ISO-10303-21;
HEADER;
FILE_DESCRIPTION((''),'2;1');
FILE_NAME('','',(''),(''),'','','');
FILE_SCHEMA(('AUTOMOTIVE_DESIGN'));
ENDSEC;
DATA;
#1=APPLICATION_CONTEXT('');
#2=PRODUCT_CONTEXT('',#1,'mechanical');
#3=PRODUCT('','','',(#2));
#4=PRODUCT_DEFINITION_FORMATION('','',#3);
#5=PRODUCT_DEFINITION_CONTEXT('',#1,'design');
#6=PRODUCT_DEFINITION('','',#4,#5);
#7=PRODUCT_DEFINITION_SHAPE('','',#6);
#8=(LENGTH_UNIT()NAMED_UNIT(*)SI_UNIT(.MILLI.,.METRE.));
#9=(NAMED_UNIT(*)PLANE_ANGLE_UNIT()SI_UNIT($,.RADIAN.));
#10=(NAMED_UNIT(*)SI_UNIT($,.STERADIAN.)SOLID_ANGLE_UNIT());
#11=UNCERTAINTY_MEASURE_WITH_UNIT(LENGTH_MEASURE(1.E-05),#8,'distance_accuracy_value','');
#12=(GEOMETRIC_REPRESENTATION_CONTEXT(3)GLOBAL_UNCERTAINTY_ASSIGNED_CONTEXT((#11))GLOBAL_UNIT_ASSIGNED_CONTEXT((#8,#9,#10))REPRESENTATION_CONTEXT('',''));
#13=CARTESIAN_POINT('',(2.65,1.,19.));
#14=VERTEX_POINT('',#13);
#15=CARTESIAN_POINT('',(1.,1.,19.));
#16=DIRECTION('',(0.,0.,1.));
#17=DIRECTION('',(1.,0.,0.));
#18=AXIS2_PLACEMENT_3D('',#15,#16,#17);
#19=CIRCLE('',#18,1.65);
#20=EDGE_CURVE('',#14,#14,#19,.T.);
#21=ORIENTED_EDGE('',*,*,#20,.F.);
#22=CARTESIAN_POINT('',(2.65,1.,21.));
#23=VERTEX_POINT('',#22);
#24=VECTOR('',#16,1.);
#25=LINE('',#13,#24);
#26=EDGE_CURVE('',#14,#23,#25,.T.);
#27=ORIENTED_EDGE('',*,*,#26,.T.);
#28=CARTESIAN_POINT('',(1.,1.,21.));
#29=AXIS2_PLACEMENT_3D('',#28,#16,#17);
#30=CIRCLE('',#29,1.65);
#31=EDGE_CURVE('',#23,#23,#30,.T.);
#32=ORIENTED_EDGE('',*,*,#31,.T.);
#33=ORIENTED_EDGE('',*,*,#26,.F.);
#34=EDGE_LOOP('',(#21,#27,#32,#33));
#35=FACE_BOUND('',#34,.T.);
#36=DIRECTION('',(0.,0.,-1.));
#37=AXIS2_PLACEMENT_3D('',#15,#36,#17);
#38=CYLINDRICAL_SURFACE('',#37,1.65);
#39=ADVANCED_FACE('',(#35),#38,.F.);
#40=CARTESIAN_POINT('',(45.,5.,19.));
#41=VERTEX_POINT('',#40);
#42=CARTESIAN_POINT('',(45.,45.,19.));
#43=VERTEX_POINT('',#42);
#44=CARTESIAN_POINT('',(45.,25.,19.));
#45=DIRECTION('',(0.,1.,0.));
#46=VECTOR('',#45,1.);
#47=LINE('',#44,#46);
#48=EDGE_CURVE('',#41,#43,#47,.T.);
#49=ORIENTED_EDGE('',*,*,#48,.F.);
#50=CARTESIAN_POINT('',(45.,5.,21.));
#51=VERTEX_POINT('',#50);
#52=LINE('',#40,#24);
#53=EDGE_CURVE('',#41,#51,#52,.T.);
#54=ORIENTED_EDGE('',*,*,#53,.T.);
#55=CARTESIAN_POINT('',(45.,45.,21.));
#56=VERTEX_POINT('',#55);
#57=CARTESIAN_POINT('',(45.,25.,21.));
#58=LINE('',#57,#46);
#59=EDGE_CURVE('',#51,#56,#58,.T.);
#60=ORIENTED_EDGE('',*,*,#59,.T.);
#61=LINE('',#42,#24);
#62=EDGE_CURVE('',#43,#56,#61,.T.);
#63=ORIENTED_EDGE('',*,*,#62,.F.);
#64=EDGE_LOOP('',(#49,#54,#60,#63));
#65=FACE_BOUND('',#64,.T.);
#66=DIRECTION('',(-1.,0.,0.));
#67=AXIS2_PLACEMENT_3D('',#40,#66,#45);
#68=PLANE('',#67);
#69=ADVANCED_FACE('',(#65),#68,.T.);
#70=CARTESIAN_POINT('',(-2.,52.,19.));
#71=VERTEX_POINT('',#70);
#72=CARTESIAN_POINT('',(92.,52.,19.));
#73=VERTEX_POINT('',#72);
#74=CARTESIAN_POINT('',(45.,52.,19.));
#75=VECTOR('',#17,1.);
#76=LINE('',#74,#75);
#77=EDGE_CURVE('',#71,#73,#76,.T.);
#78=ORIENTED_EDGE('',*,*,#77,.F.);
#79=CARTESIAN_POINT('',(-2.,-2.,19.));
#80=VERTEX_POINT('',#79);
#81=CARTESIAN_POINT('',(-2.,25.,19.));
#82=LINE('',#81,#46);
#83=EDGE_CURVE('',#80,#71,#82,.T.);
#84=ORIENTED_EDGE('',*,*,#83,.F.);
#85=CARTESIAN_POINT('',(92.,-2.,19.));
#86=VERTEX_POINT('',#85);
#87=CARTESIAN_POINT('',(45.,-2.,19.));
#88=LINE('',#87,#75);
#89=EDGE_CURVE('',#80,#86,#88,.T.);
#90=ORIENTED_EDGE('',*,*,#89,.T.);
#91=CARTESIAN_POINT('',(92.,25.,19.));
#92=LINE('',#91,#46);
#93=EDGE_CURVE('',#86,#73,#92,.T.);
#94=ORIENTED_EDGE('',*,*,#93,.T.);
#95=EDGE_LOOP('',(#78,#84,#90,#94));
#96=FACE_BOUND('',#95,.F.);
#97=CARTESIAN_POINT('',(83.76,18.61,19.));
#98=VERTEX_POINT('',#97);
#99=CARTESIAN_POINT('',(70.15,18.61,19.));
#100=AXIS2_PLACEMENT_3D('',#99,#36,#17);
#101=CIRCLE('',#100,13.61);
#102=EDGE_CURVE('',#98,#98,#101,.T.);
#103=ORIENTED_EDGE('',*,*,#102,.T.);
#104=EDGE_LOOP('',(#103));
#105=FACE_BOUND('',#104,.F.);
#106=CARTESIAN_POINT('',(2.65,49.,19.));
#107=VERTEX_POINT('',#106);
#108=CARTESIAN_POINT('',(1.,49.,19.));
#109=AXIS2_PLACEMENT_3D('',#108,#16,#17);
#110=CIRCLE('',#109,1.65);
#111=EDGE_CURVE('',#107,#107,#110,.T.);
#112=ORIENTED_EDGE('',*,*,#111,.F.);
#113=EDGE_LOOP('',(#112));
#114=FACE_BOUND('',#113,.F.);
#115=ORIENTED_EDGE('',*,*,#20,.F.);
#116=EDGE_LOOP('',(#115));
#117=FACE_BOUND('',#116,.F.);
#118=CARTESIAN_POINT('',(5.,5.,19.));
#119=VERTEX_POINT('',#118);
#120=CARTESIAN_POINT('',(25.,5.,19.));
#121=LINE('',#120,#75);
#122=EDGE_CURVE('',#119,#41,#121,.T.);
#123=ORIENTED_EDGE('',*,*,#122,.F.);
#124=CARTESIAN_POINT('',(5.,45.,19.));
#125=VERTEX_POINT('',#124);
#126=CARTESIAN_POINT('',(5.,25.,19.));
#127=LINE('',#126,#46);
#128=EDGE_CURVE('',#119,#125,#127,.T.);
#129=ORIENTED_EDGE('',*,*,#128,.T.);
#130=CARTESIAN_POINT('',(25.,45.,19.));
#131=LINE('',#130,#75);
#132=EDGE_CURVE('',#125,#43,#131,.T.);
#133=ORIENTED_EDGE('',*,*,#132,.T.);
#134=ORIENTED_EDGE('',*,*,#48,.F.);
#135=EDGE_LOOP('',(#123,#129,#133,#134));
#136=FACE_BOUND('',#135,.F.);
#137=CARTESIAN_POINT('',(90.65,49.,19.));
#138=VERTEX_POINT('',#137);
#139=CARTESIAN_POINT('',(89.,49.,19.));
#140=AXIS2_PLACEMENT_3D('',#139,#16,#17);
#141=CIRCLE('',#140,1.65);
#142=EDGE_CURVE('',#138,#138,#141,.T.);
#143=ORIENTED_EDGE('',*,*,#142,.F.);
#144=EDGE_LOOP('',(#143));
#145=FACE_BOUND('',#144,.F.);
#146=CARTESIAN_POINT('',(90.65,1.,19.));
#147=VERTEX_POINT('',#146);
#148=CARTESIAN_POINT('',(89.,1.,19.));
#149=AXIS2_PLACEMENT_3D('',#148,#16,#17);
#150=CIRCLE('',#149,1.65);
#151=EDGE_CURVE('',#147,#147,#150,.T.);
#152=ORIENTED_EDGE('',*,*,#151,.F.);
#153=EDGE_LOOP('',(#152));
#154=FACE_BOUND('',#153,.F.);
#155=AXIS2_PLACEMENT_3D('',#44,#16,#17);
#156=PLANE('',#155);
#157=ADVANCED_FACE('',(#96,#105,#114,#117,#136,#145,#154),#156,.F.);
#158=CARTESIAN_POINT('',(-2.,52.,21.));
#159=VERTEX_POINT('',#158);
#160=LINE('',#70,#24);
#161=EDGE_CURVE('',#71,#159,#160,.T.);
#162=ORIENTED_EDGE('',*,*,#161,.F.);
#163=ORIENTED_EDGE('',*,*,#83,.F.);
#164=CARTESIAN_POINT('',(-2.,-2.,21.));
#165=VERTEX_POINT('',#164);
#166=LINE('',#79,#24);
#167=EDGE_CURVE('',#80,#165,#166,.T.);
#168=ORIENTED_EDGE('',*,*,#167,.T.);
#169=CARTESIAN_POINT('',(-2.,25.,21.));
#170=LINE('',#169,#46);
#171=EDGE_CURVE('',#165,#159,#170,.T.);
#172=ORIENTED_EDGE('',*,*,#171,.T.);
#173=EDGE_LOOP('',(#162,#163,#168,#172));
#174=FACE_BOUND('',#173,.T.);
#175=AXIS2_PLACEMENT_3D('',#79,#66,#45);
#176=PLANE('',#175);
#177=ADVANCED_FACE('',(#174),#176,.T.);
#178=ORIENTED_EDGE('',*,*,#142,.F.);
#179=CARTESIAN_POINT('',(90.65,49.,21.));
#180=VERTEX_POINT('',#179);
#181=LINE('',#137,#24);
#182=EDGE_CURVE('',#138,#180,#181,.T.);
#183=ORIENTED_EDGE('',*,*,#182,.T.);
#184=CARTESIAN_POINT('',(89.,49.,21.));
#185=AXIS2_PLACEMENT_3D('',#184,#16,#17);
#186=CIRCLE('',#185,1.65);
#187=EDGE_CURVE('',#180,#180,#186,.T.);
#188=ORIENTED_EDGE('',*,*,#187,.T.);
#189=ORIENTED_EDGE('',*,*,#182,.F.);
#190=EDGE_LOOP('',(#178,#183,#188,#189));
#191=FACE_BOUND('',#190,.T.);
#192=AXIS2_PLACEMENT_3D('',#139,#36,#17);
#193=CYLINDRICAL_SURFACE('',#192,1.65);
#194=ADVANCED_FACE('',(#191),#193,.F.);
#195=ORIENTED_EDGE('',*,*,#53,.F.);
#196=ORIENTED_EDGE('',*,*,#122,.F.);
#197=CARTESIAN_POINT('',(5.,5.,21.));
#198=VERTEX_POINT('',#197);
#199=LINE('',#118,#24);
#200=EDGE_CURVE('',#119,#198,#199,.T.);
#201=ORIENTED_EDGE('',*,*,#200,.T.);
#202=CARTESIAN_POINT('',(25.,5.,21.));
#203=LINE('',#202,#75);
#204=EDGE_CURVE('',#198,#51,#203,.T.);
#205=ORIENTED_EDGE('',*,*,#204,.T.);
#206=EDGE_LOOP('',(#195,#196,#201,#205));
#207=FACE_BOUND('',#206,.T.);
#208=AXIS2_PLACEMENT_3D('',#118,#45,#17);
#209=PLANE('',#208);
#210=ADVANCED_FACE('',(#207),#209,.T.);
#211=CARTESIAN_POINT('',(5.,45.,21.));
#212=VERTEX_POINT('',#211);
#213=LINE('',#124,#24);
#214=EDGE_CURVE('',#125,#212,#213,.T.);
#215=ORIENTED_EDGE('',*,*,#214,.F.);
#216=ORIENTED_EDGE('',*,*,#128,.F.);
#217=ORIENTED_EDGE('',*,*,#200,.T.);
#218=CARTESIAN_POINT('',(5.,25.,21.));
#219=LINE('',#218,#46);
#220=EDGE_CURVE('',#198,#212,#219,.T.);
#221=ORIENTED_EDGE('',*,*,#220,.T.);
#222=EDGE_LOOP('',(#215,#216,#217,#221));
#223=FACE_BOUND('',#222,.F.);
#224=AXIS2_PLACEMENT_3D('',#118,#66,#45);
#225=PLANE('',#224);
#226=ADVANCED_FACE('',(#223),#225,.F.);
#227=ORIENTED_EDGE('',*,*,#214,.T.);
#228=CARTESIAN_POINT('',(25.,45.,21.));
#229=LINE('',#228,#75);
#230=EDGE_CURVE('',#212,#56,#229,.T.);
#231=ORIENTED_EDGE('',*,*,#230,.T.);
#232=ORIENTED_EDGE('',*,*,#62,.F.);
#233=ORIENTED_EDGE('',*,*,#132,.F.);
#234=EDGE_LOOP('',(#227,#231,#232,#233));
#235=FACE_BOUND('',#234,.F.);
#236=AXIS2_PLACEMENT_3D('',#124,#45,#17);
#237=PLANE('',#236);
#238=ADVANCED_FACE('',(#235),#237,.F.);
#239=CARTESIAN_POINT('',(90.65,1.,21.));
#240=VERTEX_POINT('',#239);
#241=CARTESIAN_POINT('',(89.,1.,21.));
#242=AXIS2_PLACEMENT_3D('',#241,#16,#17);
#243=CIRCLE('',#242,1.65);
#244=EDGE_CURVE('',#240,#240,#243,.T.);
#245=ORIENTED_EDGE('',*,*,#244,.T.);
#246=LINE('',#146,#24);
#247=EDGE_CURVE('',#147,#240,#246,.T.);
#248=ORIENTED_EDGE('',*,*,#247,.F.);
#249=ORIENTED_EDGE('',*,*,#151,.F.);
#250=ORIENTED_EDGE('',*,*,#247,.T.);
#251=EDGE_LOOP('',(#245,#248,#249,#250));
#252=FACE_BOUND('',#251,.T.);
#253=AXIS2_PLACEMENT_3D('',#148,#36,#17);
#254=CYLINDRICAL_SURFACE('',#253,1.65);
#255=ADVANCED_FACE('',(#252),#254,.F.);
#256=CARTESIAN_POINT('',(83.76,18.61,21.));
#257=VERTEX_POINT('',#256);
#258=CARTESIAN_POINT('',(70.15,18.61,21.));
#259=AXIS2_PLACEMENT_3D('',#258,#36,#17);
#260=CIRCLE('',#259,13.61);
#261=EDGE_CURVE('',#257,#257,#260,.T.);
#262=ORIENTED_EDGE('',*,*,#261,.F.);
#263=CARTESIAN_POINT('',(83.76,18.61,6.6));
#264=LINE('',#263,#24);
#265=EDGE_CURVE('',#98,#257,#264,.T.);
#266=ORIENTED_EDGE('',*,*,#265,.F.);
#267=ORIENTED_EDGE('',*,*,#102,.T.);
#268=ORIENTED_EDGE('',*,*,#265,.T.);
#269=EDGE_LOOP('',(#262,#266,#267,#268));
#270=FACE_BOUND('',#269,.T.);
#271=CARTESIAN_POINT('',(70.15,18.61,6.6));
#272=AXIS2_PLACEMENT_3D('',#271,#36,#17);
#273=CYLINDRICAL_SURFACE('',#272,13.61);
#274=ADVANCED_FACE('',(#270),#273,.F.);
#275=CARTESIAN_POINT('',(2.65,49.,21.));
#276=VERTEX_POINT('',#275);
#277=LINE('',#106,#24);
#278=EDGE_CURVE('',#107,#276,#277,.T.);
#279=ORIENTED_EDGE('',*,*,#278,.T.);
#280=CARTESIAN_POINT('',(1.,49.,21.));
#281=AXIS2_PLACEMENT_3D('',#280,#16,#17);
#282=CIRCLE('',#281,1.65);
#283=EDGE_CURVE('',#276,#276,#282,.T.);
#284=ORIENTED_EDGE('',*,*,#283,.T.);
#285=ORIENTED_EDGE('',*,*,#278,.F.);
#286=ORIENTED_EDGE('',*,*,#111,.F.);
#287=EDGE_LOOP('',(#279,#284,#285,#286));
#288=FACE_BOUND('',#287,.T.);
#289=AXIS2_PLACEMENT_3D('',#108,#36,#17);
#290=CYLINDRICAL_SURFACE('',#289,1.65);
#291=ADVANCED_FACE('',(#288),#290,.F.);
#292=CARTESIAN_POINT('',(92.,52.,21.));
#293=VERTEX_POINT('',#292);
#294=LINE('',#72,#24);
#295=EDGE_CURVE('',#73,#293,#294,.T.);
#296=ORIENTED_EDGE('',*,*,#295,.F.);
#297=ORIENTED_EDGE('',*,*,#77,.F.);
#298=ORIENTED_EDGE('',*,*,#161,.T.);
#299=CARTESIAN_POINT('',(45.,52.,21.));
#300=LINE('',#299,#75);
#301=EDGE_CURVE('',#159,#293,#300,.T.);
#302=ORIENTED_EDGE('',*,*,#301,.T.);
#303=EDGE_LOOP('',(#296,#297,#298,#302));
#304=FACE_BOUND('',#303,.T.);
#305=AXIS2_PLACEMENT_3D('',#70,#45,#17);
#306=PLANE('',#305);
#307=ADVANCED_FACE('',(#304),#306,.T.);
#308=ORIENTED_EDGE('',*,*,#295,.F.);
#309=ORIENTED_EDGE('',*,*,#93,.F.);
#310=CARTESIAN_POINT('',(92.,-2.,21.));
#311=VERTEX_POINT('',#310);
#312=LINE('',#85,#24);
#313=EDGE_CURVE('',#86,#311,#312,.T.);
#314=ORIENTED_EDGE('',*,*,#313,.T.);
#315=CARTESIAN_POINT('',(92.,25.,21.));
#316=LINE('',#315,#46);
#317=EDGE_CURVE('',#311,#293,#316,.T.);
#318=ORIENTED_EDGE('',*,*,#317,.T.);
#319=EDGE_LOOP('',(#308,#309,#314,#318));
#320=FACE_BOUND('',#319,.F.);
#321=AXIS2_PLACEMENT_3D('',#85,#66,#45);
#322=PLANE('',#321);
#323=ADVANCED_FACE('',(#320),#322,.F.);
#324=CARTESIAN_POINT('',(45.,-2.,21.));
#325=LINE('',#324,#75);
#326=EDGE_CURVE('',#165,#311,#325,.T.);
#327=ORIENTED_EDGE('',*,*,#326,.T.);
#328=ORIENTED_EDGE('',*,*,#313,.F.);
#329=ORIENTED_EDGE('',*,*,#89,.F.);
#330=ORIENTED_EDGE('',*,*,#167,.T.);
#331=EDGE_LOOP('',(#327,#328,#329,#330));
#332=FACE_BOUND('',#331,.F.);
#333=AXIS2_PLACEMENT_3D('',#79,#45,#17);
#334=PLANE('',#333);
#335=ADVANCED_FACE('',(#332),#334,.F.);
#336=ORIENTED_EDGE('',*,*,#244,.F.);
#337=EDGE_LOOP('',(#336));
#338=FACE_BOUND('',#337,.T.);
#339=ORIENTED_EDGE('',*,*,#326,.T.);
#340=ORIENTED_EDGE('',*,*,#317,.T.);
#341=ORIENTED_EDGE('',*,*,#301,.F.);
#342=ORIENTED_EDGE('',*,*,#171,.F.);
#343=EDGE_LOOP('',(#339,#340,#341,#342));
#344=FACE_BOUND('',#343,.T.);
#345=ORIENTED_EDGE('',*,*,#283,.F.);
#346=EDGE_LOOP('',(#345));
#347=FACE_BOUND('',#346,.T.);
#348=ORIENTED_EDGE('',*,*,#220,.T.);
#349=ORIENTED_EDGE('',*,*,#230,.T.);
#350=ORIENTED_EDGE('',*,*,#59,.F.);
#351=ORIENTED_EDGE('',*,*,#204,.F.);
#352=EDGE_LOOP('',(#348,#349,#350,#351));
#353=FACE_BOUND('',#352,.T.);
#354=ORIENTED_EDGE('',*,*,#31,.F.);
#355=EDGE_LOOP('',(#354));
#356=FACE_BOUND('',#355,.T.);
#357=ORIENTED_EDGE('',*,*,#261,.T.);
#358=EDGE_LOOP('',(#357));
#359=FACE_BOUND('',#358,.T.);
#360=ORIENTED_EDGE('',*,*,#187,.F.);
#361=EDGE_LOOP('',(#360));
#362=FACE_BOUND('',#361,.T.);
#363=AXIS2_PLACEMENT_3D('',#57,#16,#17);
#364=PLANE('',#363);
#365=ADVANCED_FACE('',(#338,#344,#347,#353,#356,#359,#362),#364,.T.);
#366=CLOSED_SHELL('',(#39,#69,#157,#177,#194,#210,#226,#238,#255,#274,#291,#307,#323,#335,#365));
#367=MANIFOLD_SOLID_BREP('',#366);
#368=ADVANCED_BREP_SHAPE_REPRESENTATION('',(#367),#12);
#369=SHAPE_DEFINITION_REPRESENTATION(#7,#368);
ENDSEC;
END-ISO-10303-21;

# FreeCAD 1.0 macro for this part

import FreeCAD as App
import Part
import Sketcher

V = App.Vector
Q = App.Units.Quantity


def add_polygon(sketch, points):
    """Adds a closed chain of lines whose ends are joined by coincident constraints."""
    first, n = sketch.GeometryCount, len(points)
    for a, b in zip(points, points[1:] + points[:1]):
        sketch.addGeometry(Part.LineSegment(App.Vector(*a, 0), App.Vector(*b, 0)), False)
    for i in range(n):
        sketch.addConstraint(Sketcher.Constraint("Coincident", first + i, 2, first + (i + 1) % n, 1))

doc = App.newDocument("Part")
body = doc.addObject("PartDesign::Body", "Body")

# Sketch on XY plane
sketch1 = body.newObject("Sketcher::SketchObject", "Sketch")
sketch1.AttachmentSupport = (doc.getObject("XY_Plane"), [""])
sketch1.MapMode = "FlatFace"
sketch1.addGeometry(Part.Circle(V(16.975, 14, 0), V(0, 0, 1), 11), False)
sketch1.addConstraint(Sketcher.Constraint("Diameter", 0, Q("22 mm")))
sketch1.addConstraint(Sketcher.Constraint("DistanceY", -1, 1, 0, 3, Q("14 mm")))
sketch1.addConstraint(Sketcher.Constraint("DistanceX", -1, 1, 0, 3, Q("16.975 mm")))
pad1 = body.newObject("PartDesign::Pad", "Pad")
pad1.Profile = sketch1
pad1.Length = 11
body2 = doc.addObject("PartDesign::Body", "Body001")
doc.recompute()

body.Placement = App.Placement(V(0, 0, 20.87), App.Rotation(V(0, 0, 1), 0))
boolean = body2.newObject("PartDesign::Boolean", "Boolean")
boolean.Type = "Fuse"
boolean.addObjects([body])
body3 = doc.addObject("PartDesign::Body", "Body002")

# Sketch on XY plane
sketch2 = body3.newObject("Sketcher::SketchObject", "Sketch001")
sketch2.AttachmentSupport = (doc.getObject("XY_Plane002"), [""])
sketch2.MapMode = "FlatFace"
add_polygon(sketch2, [(0, 26.75), (0, 0), (33.86, 0), (33.86, 26.75)])  # lines 0-3
sketch2.addGeometry(Part.Circle(V(4.99, 3.31, 0), V(0, 0, 1), 1.65), False)  # 4
sketch2.addGeometry(Part.Circle(V(31.01, 3.31, 0), V(0, 0, 1), 1.65), False)  # 5
sketch2.addGeometry(Part.Circle(V(5, 22.88, 0), V(0, 0, 1), 1.65), False)  # 6
sketch2.addGeometry(Part.Circle(V(31.01, 22.88, 0), V(0, 0, 1), 1.65), False)  # 7
sketch2.addConstraint(Sketcher.Constraint("Vertical", 0))
sketch2.addConstraint(Sketcher.Constraint("Horizontal", 1))
sketch2.addConstraint(Sketcher.Constraint("Vertical", 2))
sketch2.addConstraint(Sketcher.Constraint("Horizontal", 3))
sketch2.addConstraint(Sketcher.Constraint("Coincident", 0, 2, -1, 1))
sketch2.addConstraint(Sketcher.Constraint("Equal", 4, 5))
sketch2.addConstraint(Sketcher.Constraint("Equal", 5, 6))
sketch2.addConstraint(Sketcher.Constraint("Equal", 6, 7))
sketch2.addConstraint(Sketcher.Constraint("Horizontal", 4, 3, 5, 3))
sketch2.addConstraint(Sketcher.Constraint("Horizontal", 6, 3, 7, 3))
sketch2.addConstraint(Sketcher.Constraint("Vertical", 5, 3, 7, 3))
sketch2.addConstraint(Sketcher.Constraint("Diameter", 4, Q("3.3 mm")))
sketch2.addConstraint(Sketcher.Constraint("DistanceX", -1, 1, 6, 3, Q("5 mm")))
sketch2.addConstraint(Sketcher.Constraint("DistanceX", 1, 1, 1, 2, Q("33.86 mm")))
sketch2.addConstraint(Sketcher.Constraint("DistanceY", 0, 2, 0, 1, Q("26.75 mm")))
sketch2.addConstraint(Sketcher.Constraint("DistanceX", -1, 1, 4, 3, Q("4.99 mm")))
sketch2.addConstraint(Sketcher.Constraint("DistanceY", -1, 1, 4, 3, Q("3.31 mm")))
sketch2.addConstraint(Sketcher.Constraint("DistanceX", -1, 1, 5, 3, Q("31.01 mm")))
sketch2.addConstraint(Sketcher.Constraint("DistanceY", -1, 1, 6, 3, Q("22.88 mm")))
pad2 = body3.newObject("PartDesign::Pad", "Pad001")
pad2.Profile = sketch2
pad2.Length = 1.6
body4 = doc.addObject("PartDesign::Body", "Body003")

# Sketch on XY plane
sketch3 = body4.newObject("Sketcher::SketchObject", "Sketch002")
sketch3.AttachmentSupport = (doc.getObject("XY_Plane003"), [""])
sketch3.MapMode = "FlatFace"
add_polygon(sketch3, [(-17, 20.25), (-17, 7.5), (0, 7.5), (0, 20.25)])  # lines 0-3
sketch3.addConstraint(Sketcher.Constraint("Vertical", 0))
sketch3.addConstraint(Sketcher.Constraint("Horizontal", 1))
sketch3.addConstraint(Sketcher.Constraint("Vertical", 2))
sketch3.addConstraint(Sketcher.Constraint("Horizontal", 3))
sketch3.addConstraint(Sketcher.Constraint("PointOnObject", 1, 2, -2))
sketch3.addConstraint(Sketcher.Constraint("DistanceX", 1, 1, 1, 2, Q("17 mm")))
sketch3.addConstraint(Sketcher.Constraint("DistanceY", 0, 2, 0, 1, Q("12.75 mm")))
sketch3.addConstraint(Sketcher.Constraint("DistanceY", -1, 1, 0, 2, Q("7.5 mm")))
pad3 = body4.newObject("PartDesign::Pad", "Pad002")
pad3.Profile = sketch3
pad3.Length = 4.3
body5 = doc.addObject("PartDesign::Body", "Body004")
doc.recompute()

body4.Placement = App.Placement(V(0.1, 0, 1.6), App.Rotation(V(0, 0, 1), 0))
boolean2 = body5.newObject("PartDesign::Boolean", "Boolean001")
boolean2.Type = "Fuse"
boolean2.addObjects([body4])
body6 = doc.addObject("PartDesign::Body", "Body005")

# Sketch on XY plane
sketch4 = body6.newObject("Sketcher::SketchObject", "Sketch003")
sketch4.AttachmentSupport = (doc.getObject("XY_Plane005"), [""])
sketch4.MapMode = "FlatFace"
sketch4.addGeometry(Part.Circle(V(17.15, 13.61, 0), V(0, 0, 1), 13.61), False)
sketch4.addConstraint(Sketcher.Constraint("Diameter", 0, Q("27.22 mm")))
sketch4.addConstraint(Sketcher.Constraint("DistanceX", -1, 1, 0, 3, Q("17.15 mm")))
sketch4.addConstraint(Sketcher.Constraint("DistanceY", -1, 1, 0, 3, Q("13.61 mm")))
pad4 = body6.newObject("PartDesign::Pad", "Pad003")
pad4.Profile = sketch4
pad4.Length = 19.27
body7 = doc.addObject("PartDesign::Body", "Body006")
doc.recompute()

body6.Placement = App.Placement(V(0, 0, 1.6), App.Rotation(V(0, 0, 1), 0))
boolean3 = body7.newObject("PartDesign::Boolean", "Boolean002")
boolean3.Type = "Fuse"
boolean3.addObjects([body6])
doc.recompute()

boolean4 = body7.newObject("PartDesign::Boolean", "Boolean003")
boolean4.Type = "Fuse"
boolean4.addObjects([body2])
doc.recompute()

boolean5 = body7.newObject("PartDesign::Boolean", "Boolean004")
boolean5.Type = "Fuse"
boolean5.addObjects([body3])
doc.recompute()

boolean6 = body7.newObject("PartDesign::Boolean", "Boolean005")
boolean6.Type = "Fuse"
boolean6.addObjects([body5])
body8 = doc.addObject("PartDesign::Body", "Body007")
doc.recompute()

body7.Placement = App.Placement(V(53, 5, 5), App.Rotation(V(0, 0, 1), 0))
boolean7 = body8.newObject("PartDesign::Boolean", "Boolean006")
boolean7.Type = "Fuse"
boolean7.addObjects([body7])
body9 = doc.addObject("PartDesign::Body", "Body008")

# Sketch on XY plane
sketch5 = body9.newObject("Sketcher::SketchObject", "Sketch004")
sketch5.AttachmentSupport = (doc.getObject("XY_Plane008"), [""])
sketch5.MapMode = "FlatFace"
add_polygon(sketch5, [(-2, 52), (-2, -2), (92, -2), (92, 52)])  # lines 0-3
sketch5.addGeometry(Part.Circle(V(1, 1, 0), V(0, 0, 1), 1.65), False)  # 4
sketch5.addGeometry(Part.Circle(V(89, 1, 0), V(0, 0, 1), 1.65), False)  # 5
add_polygon(sketch5, [(45, 5), (5, 5), (5, 45), (45, 45)])  # lines 6-9
sketch5.addGeometry(Part.Circle(V(1, 49, 0), V(0, 0, 1), 1.65), False)  # 10
sketch5.addGeometry(Part.Circle(V(89, 49, 0), V(0, 0, 1), 1.65), False)  # 11
sketch5.addConstraint(Sketcher.Constraint("Vertical", 0))
sketch5.addConstraint(Sketcher.Constraint("Horizontal", 1))
sketch5.addConstraint(Sketcher.Constraint("Vertical", 2))
sketch5.addConstraint(Sketcher.Constraint("Horizontal", 3))
sketch5.addConstraint(Sketcher.Constraint("Horizontal", 6))
sketch5.addConstraint(Sketcher.Constraint("Vertical", 7))
sketch5.addConstraint(Sketcher.Constraint("Horizontal", 8))
sketch5.addConstraint(Sketcher.Constraint("Vertical", 9))
sketch5.addConstraint(Sketcher.Constraint("Equal", 4, 5))
sketch5.addConstraint(Sketcher.Constraint("Equal", 5, 10))
sketch5.addConstraint(Sketcher.Constraint("Equal", 10, 11))
sketch5.addConstraint(Sketcher.Constraint("Horizontal", 4, 3, 5, 3))
sketch5.addConstraint(Sketcher.Constraint("Horizontal", 10, 3, 11, 3))
sketch5.addConstraint(Sketcher.Constraint("Vertical", 4, 3, 10, 3))
sketch5.addConstraint(Sketcher.Constraint("Vertical", 5, 3, 11, 3))
sketch5.addConstraint(Sketcher.Constraint("Equal", 8, 7))
sketch5.addConstraint(Sketcher.Constraint("Diameter", 4, Q("3.3 mm")))
sketch5.addConstraint(Sketcher.Constraint("DistanceX", 1, 1, 1, 2, Q("94 mm")))
sketch5.addConstraint(Sketcher.Constraint("DistanceX", 6, 2, 6, 1, Q("40 mm")))
sketch5.addConstraint(Sketcher.Constraint("DistanceY", 0, 2, 0, 1, Q("54 mm")))
sketch5.addConstraint(Sketcher.Constraint("DistanceX", -1, 1, 4, 3, Q("1 mm")))
sketch5.addConstraint(Sketcher.Constraint("DistanceY", -1, 1, 4, 3, Q("1 mm")))
sketch5.addConstraint(Sketcher.Constraint("DistanceX", -1, 1, 5, 3, Q("89 mm")))
sketch5.addConstraint(Sketcher.Constraint("DistanceY", -1, 1, 10, 3, Q("49 mm")))
sketch5.addConstraint(Sketcher.Constraint("DistanceX", 0, 2, -1, 1, Q("2 mm")))
sketch5.addConstraint(Sketcher.Constraint("DistanceY", 0, 2, -1, 1, Q("2 mm")))
sketch5.addConstraint(Sketcher.Constraint("DistanceX", -1, 1, 6, 2, Q("5 mm")))
sketch5.addConstraint(Sketcher.Constraint("DistanceY", -1, 1, 6, 2, Q("5 mm")))
pad5 = body9.newObject("PartDesign::Pad", "Pad004")
pad5.Profile = sketch5
pad5.Length = 2
body10 = doc.addObject("PartDesign::Body", "Body009")
doc.recompute()

body9.Placement = App.Placement(V(0, 0, 19), App.Rotation(V(0, 0, 1), 0))
boolean8 = body10.newObject("PartDesign::Boolean", "Boolean007")
boolean8.Type = "Fuse"
boolean8.addObjects([body9])
doc.recompute()

boolean9 = body10.newObject("PartDesign::Boolean", "Boolean008")
boolean9.Type = "Cut"
boolean9.addObjects([body8])

doc.recompute()
